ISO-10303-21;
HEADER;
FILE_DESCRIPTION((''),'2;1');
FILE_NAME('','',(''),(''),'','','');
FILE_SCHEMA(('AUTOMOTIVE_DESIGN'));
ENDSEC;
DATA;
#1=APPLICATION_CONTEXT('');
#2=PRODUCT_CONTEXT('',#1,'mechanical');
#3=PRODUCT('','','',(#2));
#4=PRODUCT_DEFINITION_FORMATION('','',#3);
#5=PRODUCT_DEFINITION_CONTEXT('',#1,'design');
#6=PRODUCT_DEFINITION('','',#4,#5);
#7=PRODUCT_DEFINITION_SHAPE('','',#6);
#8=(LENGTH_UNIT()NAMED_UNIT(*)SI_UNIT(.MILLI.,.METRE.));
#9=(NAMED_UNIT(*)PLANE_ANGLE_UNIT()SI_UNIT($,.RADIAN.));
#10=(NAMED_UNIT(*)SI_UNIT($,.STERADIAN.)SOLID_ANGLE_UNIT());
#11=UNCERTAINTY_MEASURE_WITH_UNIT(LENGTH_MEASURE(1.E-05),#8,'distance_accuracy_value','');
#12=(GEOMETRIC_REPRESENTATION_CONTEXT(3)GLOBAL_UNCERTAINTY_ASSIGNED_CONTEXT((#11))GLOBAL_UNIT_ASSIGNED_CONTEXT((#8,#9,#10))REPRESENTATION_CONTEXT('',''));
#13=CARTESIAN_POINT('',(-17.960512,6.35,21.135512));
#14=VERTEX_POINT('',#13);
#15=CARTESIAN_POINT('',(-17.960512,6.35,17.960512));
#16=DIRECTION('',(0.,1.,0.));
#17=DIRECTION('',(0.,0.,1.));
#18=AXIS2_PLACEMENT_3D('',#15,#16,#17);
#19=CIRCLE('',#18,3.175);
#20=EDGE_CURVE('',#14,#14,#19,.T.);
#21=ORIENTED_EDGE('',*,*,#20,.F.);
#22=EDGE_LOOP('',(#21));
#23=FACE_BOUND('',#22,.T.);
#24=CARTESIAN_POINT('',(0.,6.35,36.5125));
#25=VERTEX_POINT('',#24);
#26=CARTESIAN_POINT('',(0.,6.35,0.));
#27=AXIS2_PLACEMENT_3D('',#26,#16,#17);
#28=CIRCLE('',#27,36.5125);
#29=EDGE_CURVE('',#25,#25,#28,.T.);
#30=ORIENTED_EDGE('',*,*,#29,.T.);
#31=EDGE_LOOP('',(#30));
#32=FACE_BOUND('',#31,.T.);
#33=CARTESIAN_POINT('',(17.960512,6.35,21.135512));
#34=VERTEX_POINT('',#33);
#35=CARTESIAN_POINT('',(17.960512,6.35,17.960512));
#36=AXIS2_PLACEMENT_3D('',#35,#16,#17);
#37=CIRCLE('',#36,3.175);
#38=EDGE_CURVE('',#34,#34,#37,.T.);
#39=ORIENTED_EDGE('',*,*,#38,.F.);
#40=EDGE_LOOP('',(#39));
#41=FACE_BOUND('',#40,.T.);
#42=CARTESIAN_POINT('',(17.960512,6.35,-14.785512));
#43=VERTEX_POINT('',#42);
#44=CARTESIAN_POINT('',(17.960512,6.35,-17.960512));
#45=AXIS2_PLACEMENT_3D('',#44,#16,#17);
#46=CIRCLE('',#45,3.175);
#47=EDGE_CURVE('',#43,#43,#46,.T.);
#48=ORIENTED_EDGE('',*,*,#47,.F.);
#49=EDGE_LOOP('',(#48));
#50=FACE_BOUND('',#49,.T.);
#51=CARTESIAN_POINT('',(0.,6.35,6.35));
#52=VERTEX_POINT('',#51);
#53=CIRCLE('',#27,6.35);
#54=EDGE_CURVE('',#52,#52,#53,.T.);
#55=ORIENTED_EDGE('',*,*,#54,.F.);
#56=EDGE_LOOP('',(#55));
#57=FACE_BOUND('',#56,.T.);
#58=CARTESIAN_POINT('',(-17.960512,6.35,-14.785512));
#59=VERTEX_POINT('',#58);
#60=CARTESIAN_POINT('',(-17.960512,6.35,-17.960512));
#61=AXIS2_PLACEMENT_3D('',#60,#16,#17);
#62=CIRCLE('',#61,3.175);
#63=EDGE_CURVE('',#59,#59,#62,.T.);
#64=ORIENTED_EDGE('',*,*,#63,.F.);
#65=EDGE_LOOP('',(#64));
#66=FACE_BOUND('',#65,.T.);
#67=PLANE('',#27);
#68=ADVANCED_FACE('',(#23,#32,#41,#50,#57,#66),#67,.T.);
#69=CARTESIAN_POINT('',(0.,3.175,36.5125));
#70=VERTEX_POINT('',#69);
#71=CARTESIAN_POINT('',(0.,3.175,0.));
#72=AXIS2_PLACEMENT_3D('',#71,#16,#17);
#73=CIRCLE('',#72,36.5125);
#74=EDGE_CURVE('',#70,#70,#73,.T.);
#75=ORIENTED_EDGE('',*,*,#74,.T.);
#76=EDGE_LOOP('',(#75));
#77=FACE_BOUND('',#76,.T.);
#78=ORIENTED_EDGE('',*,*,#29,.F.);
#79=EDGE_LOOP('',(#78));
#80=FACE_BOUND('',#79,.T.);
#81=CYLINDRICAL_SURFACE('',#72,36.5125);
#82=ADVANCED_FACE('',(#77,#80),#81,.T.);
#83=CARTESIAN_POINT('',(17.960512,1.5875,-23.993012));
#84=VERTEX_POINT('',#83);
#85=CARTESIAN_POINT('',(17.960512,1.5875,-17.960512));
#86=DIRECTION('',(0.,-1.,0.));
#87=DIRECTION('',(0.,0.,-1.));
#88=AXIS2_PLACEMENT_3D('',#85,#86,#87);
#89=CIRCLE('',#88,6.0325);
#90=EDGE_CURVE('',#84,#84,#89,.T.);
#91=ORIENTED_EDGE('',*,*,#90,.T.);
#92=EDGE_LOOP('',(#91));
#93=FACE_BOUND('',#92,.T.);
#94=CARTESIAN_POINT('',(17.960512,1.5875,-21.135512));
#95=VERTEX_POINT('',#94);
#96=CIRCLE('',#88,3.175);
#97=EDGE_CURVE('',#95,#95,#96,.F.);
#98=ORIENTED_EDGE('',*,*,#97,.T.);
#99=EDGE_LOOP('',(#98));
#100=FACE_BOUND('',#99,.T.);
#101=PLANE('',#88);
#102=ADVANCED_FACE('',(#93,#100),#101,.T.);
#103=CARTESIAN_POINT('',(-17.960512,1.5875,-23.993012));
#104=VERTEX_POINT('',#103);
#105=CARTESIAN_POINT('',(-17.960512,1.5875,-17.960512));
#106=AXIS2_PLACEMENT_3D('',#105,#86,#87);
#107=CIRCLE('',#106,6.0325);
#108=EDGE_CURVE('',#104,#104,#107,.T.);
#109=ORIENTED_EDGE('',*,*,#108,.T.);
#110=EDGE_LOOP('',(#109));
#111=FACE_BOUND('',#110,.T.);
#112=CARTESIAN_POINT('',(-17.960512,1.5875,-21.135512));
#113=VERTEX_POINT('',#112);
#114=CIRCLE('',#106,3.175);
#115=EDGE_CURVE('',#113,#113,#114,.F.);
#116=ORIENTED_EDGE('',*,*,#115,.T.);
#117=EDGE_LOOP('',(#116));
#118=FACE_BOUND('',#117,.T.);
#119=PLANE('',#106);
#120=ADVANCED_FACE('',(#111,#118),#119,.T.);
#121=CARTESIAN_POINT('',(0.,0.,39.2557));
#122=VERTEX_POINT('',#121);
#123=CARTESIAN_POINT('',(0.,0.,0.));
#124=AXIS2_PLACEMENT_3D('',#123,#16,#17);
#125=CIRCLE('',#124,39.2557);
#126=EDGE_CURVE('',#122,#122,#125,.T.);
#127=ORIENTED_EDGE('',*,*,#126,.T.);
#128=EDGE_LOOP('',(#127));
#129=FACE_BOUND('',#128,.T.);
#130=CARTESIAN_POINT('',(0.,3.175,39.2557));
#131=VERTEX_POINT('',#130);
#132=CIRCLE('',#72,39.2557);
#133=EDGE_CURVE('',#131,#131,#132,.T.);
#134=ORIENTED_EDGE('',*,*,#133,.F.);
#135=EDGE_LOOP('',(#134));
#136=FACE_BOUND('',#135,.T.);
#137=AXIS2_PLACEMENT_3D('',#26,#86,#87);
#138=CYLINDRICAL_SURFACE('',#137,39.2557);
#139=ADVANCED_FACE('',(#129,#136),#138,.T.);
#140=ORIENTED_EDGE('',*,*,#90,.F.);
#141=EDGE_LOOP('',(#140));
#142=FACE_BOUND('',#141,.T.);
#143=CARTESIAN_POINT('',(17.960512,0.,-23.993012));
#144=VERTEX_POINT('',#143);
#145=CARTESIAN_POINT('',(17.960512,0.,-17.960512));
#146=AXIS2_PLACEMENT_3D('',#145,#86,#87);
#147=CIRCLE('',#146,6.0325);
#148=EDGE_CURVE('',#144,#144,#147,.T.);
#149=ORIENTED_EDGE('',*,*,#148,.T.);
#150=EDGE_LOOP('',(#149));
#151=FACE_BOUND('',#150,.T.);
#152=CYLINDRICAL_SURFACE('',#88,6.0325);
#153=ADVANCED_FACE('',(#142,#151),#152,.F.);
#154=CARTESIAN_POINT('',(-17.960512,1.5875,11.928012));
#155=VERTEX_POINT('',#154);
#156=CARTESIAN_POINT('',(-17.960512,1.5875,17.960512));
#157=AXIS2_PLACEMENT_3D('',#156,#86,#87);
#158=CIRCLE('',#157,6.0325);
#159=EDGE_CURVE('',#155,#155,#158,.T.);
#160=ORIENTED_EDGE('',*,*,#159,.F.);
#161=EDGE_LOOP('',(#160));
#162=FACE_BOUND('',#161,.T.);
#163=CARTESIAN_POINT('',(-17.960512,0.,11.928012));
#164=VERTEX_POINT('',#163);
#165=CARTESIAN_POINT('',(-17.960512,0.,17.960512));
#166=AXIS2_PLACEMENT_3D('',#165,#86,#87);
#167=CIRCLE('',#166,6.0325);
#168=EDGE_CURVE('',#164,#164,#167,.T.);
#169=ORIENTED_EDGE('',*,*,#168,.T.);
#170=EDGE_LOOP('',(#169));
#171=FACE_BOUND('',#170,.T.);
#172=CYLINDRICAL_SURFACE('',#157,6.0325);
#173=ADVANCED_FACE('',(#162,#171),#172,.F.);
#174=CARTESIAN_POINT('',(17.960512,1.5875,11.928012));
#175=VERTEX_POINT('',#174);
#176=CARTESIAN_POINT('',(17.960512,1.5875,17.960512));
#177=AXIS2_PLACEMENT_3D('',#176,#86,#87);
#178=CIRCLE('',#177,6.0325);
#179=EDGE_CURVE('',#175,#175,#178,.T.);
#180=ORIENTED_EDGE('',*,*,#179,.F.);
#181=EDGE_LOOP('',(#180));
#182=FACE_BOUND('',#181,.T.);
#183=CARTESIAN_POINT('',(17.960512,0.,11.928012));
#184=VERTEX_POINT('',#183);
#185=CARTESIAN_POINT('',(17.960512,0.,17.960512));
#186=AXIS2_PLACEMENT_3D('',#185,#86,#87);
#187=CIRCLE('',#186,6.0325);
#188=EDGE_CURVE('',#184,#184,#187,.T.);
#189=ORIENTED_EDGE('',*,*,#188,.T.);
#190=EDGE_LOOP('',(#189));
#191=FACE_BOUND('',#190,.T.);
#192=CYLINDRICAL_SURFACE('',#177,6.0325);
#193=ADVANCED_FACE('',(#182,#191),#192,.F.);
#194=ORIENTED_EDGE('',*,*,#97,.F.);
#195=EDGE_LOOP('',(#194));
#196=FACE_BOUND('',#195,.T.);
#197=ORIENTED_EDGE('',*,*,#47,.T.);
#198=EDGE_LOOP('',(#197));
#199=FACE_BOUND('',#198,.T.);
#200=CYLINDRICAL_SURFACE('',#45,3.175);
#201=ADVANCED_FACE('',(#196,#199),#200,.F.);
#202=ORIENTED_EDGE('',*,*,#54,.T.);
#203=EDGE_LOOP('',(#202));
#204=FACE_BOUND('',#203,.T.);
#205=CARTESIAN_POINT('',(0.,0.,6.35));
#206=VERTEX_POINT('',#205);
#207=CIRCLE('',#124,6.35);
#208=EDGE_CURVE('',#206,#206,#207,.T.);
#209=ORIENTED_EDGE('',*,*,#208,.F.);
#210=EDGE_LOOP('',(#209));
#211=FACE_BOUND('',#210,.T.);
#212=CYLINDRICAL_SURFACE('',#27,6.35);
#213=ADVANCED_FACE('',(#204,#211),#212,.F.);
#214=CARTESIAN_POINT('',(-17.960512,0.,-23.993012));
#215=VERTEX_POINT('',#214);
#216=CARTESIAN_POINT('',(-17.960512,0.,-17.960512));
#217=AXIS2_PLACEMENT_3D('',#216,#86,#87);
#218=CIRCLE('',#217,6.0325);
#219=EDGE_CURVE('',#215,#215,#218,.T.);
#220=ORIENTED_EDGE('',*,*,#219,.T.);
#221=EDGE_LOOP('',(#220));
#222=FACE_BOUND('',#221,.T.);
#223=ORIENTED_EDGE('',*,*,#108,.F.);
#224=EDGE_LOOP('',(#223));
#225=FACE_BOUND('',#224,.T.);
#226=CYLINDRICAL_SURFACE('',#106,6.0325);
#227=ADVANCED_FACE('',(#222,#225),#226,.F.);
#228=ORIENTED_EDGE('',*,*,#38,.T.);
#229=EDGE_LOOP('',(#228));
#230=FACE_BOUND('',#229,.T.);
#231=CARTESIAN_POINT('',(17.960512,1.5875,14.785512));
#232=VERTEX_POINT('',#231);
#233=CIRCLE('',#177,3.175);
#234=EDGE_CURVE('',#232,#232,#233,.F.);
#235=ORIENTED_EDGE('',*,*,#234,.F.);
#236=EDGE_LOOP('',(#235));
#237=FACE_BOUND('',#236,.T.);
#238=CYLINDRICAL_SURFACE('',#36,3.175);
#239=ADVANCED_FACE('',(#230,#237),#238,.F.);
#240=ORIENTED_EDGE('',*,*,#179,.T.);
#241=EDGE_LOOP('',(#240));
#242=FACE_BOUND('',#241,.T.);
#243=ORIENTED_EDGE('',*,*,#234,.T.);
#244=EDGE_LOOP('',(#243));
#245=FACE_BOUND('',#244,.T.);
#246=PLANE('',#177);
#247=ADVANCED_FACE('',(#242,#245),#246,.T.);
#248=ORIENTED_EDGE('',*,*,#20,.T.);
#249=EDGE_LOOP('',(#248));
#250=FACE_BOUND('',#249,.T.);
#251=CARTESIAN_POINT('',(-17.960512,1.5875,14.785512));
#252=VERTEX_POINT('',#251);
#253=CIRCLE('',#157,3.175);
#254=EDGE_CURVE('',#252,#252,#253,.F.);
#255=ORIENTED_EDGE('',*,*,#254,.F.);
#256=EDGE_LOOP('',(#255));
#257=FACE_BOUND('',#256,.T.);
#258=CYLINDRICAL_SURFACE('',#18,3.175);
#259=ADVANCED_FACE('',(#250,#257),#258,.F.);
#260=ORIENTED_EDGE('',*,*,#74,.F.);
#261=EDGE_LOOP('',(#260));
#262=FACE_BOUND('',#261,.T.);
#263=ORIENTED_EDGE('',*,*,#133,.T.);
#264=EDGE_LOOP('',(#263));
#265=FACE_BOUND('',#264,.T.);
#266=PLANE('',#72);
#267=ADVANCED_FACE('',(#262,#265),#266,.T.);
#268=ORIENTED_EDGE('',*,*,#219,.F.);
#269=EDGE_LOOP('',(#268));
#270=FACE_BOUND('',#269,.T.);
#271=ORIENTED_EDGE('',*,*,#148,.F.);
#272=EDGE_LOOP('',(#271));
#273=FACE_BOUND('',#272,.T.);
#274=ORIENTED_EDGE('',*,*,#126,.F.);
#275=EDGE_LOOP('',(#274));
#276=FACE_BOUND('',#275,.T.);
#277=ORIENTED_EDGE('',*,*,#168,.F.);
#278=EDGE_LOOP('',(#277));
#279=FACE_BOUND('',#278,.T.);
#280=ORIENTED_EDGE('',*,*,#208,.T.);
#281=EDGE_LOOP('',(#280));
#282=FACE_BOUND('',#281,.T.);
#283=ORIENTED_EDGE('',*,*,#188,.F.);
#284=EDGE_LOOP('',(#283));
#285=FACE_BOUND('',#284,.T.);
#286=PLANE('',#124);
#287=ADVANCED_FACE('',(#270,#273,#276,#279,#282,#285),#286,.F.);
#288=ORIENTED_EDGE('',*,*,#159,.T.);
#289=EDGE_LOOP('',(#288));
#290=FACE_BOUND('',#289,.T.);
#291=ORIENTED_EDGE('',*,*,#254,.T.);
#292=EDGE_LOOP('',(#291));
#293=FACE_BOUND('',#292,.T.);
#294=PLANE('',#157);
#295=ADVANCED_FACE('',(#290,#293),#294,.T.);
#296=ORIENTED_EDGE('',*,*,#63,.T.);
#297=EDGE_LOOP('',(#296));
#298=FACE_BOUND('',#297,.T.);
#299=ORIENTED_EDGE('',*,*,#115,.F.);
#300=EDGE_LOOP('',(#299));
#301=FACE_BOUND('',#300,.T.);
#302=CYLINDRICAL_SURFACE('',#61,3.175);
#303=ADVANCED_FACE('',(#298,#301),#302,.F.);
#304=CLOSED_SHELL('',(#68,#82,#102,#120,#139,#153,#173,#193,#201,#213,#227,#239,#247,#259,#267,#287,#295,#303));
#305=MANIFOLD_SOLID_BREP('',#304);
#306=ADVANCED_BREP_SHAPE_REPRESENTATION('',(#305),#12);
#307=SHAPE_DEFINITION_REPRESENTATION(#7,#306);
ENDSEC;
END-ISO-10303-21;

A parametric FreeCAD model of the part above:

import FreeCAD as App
import Part
import Sketcher

V = App.Vector
Q = App.Units.Quantity

doc = App.newDocument("Part")
params = doc.addObject("Spreadsheet::Sheet", "Params")
for row, (alias, value) in enumerate([
    ("sketch1_diameter", "3.091 in"),
    ("pad1_length", "0.25 in"),
    ("sketch2_diameter", "3.091 in"),
    ("sketch2_diameter2", "2.875 in"),
    ("pocket1_length", "0.125 in"),
    ("sketch3_diameter", "0.25 in"),
    ("hole_diameter", "0.25 in"),
    ("sketch4_diameter", "0.5 in"),
    ("hole2_diameter", "0.5 in"),
    ("sketch5_diameter", "0.475 in"),
    ("pocket2_length", "0.0625 in"),
], start=1):
    params.set(f"A{row}", alias)
    params.set(f"B{row}", "=" + value)
    params.setAlias(f"B{row}", alias)

body = doc.addObject("PartDesign::Body", "Body")

# Sketch on XZ plane
sketch1 = body.newObject("Sketcher::SketchObject", "Sketch")
sketch1.AttachmentSupport = (doc.getObject("XZ_Plane"), [""])
sketch1.MapMode = "FlatFace"
sketch1.addGeometry(Part.Circle(V(0, 0, 0), V(0, 0, 1), 39.2557), False)
sketch1.addConstraint(Sketcher.Constraint("Coincident", 0, 3, -1, 1))
sketch1.addConstraint(Sketcher.Constraint("Diameter", 0, Q("3.091 in")))
sketch1.setExpression("Constraints[1]", "Params.sketch1_diameter")
pad1 = body.newObject("PartDesign::Pad", "Pad")
pad1.Profile = sketch1
pad1.setExpression("Length", "Params.pad1_length")
pad1.Reversed = True

# Sketch on XZ plane
sketch2 = body.newObject("Sketcher::SketchObject", "Sketch001")
sketch2.AttachmentSupport = (doc.getObject("XZ_Plane"), [""])
sketch2.MapMode = "FlatFace"
sketch2.AttachmentOffset = App.Placement(V(0, 0, -0.25 * 25.4), App.Rotation())
sketch2.addGeometry(Part.Circle(V(0, 0, 0), V(0, 0, 1), 39.2557), False)
sketch2.addGeometry(Part.Circle(V(0, 0, 0), V(0, 0, 1), 36.5125), False)
sketch2.addConstraint(Sketcher.Constraint("Coincident", 0, 3, -1, 1))
sketch2.addConstraint(Sketcher.Constraint("Coincident", 1, 3, -1, 1))
sketch2.addConstraint(Sketcher.Constraint("Diameter", 0, Q("3.091 in")))
sketch2.addConstraint(Sketcher.Constraint("Diameter", 1, Q("2.875 in")))
sketch2.setExpression("Constraints[2]", "Params.sketch2_diameter")
sketch2.setExpression("Constraints[3]", "Params.sketch2_diameter2")
pocket1 = body.newObject("PartDesign::Pocket", "Pocket")
pocket1.Profile = sketch2
pocket1.setExpression("Length", "Params.pocket1_length")
pocket1.Reversed = True

# Sketch on XZ plane
sketch3 = body.newObject("Sketcher::SketchObject", "Sketch002")
sketch3.AttachmentSupport = (doc.getObject("XZ_Plane"), [""])
sketch3.MapMode = "FlatFace"
sketch3.AttachmentOffset = App.Placement(V(0, 0, -0.25 * 25.4), App.Rotation())
sketch3.addGeometry(Part.Circle(V(-17.960512, -17.960512, 0), V(0, 0, 1), 3.175), False)
sketch3.addGeometry(Part.Circle(V(-17.960512, 17.960512, 0), V(0, 0, 1), 3.175), False)
sketch3.addGeometry(Part.Circle(V(17.960512, -17.960512, 0), V(0, 0, 1), 3.175), False)
sketch3.addGeometry(Part.Circle(V(17.960512, 17.960512, 0), V(0, 0, 1), 3.175), False)
sketch3.addConstraint(Sketcher.Constraint("Equal", 0, 1))
sketch3.addConstraint(Sketcher.Constraint("Equal", 1, 2))
sketch3.addConstraint(Sketcher.Constraint("Equal", 2, 3))
sketch3.addConstraint(Sketcher.Constraint("Symmetric", 1, 3, 2, 3, -1, 1))
sketch3.addConstraint(Sketcher.Constraint("Symmetric", 0, 3, 3, 3, -1, 1))
sketch3.addConstraint(Sketcher.Constraint("Symmetric", 0, 3, 2, 3, -2))
sketch3.addConstraint(Sketcher.Constraint("Diameter", 0, Q("0.25 in")))
sketch3.addConstraint(Sketcher.Constraint("DistanceX", 0, 3, -1, 1, Q("17.960512 mm")))
sketch3.addConstraint(Sketcher.Constraint("DistanceY", 0, 3, -1, 1, Q("17.960512 mm")))
sketch3.setExpression("Constraints[6]", "Params.sketch3_diameter")
doc.recompute()
hole = body.newObject("PartDesign::Hole", "Hole")
hole.Profile = sketch3
hole.ThreadType = "None"
hole.setExpression("Diameter", "Params.hole_diameter")
hole.DepthType = "ThroughAll"
hole.Reversed = True

# Sketch on XZ plane
sketch4 = body.newObject("Sketcher::SketchObject", "Sketch003")
sketch4.AttachmentSupport = (doc.getObject("XZ_Plane"), [""])
sketch4.MapMode = "FlatFace"
sketch4.AttachmentOffset = App.Placement(V(0, 0, -0.25 * 25.4), App.Rotation())
sketch4.addGeometry(Part.Circle(V(0, 0, 0), V(0, 0, 1), 6.35), False)
sketch4.addConstraint(Sketcher.Constraint("Coincident", 0, 3, -1, 1))
sketch4.addConstraint(Sketcher.Constraint("Diameter", 0, Q("0.5 in")))
sketch4.setExpression("Constraints[1]", "Params.sketch4_diameter")
doc.recompute()
hole2 = body.newObject("PartDesign::Hole", "Hole001")
hole2.Profile = sketch4
hole2.ThreadType = "None"
hole2.setExpression("Diameter", "Params.hole2_diameter")
hole2.DepthType = "ThroughAll"
hole2.Reversed = True

# Sketch on XZ plane
sketch5 = body.newObject("Sketcher::SketchObject", "Sketch004")
sketch5.AttachmentSupport = (doc.getObject("XZ_Plane"), [""])
sketch5.MapMode = "FlatFace"
sketch5.addGeometry(Part.Circle(V(-17.960512, 17.960512, 0), V(0, 0, 1), 6.0325), False)
sketch5.addGeometry(Part.Circle(V(17.960512, 17.960512, 0), V(0, 0, 1), 6.0325), False)
sketch5.addGeometry(Part.Circle(V(17.960512, -17.960512, 0), V(0, 0, 1), 6.0325), False)
sketch5.addGeometry(Part.Circle(V(-17.960512, -17.960512, 0), V(0, 0, 1), 6.0325), False)
sketch5.addConstraint(Sketcher.Constraint("Equal", 0, 1))
sketch5.addConstraint(Sketcher.Constraint("Equal", 1, 2))
sketch5.addConstraint(Sketcher.Constraint("Equal", 2, 3))
sketch5.addConstraint(Sketcher.Constraint("Symmetric", 0, 3, 2, 3, -1, 1))
sketch5.addConstraint(Sketcher.Constraint("Symmetric", 1, 3, 3, 3, -1, 1))
sketch5.addConstraint(Sketcher.Constraint("Symmetric", 0, 3, 1, 3, -2))
sketch5.addConstraint(Sketcher.Constraint("Diameter", 0, Q("0.475 in")))
sketch5.addConstraint(Sketcher.Constraint("DistanceX", 0, 3, -1, 1, Q("17.960512 mm")))
sketch5.addConstraint(Sketcher.Constraint("DistanceY", -1, 1, 0, 3, Q("17.960512 mm")))
sketch5.setExpression("Constraints[6]", "Params.sketch5_diameter")
pocket2 = body.newObject("PartDesign::Pocket", "Pocket001")
pocket2.Profile = sketch5
pocket2.setExpression("Length", "Params.pocket2_length")

doc.recompute()
